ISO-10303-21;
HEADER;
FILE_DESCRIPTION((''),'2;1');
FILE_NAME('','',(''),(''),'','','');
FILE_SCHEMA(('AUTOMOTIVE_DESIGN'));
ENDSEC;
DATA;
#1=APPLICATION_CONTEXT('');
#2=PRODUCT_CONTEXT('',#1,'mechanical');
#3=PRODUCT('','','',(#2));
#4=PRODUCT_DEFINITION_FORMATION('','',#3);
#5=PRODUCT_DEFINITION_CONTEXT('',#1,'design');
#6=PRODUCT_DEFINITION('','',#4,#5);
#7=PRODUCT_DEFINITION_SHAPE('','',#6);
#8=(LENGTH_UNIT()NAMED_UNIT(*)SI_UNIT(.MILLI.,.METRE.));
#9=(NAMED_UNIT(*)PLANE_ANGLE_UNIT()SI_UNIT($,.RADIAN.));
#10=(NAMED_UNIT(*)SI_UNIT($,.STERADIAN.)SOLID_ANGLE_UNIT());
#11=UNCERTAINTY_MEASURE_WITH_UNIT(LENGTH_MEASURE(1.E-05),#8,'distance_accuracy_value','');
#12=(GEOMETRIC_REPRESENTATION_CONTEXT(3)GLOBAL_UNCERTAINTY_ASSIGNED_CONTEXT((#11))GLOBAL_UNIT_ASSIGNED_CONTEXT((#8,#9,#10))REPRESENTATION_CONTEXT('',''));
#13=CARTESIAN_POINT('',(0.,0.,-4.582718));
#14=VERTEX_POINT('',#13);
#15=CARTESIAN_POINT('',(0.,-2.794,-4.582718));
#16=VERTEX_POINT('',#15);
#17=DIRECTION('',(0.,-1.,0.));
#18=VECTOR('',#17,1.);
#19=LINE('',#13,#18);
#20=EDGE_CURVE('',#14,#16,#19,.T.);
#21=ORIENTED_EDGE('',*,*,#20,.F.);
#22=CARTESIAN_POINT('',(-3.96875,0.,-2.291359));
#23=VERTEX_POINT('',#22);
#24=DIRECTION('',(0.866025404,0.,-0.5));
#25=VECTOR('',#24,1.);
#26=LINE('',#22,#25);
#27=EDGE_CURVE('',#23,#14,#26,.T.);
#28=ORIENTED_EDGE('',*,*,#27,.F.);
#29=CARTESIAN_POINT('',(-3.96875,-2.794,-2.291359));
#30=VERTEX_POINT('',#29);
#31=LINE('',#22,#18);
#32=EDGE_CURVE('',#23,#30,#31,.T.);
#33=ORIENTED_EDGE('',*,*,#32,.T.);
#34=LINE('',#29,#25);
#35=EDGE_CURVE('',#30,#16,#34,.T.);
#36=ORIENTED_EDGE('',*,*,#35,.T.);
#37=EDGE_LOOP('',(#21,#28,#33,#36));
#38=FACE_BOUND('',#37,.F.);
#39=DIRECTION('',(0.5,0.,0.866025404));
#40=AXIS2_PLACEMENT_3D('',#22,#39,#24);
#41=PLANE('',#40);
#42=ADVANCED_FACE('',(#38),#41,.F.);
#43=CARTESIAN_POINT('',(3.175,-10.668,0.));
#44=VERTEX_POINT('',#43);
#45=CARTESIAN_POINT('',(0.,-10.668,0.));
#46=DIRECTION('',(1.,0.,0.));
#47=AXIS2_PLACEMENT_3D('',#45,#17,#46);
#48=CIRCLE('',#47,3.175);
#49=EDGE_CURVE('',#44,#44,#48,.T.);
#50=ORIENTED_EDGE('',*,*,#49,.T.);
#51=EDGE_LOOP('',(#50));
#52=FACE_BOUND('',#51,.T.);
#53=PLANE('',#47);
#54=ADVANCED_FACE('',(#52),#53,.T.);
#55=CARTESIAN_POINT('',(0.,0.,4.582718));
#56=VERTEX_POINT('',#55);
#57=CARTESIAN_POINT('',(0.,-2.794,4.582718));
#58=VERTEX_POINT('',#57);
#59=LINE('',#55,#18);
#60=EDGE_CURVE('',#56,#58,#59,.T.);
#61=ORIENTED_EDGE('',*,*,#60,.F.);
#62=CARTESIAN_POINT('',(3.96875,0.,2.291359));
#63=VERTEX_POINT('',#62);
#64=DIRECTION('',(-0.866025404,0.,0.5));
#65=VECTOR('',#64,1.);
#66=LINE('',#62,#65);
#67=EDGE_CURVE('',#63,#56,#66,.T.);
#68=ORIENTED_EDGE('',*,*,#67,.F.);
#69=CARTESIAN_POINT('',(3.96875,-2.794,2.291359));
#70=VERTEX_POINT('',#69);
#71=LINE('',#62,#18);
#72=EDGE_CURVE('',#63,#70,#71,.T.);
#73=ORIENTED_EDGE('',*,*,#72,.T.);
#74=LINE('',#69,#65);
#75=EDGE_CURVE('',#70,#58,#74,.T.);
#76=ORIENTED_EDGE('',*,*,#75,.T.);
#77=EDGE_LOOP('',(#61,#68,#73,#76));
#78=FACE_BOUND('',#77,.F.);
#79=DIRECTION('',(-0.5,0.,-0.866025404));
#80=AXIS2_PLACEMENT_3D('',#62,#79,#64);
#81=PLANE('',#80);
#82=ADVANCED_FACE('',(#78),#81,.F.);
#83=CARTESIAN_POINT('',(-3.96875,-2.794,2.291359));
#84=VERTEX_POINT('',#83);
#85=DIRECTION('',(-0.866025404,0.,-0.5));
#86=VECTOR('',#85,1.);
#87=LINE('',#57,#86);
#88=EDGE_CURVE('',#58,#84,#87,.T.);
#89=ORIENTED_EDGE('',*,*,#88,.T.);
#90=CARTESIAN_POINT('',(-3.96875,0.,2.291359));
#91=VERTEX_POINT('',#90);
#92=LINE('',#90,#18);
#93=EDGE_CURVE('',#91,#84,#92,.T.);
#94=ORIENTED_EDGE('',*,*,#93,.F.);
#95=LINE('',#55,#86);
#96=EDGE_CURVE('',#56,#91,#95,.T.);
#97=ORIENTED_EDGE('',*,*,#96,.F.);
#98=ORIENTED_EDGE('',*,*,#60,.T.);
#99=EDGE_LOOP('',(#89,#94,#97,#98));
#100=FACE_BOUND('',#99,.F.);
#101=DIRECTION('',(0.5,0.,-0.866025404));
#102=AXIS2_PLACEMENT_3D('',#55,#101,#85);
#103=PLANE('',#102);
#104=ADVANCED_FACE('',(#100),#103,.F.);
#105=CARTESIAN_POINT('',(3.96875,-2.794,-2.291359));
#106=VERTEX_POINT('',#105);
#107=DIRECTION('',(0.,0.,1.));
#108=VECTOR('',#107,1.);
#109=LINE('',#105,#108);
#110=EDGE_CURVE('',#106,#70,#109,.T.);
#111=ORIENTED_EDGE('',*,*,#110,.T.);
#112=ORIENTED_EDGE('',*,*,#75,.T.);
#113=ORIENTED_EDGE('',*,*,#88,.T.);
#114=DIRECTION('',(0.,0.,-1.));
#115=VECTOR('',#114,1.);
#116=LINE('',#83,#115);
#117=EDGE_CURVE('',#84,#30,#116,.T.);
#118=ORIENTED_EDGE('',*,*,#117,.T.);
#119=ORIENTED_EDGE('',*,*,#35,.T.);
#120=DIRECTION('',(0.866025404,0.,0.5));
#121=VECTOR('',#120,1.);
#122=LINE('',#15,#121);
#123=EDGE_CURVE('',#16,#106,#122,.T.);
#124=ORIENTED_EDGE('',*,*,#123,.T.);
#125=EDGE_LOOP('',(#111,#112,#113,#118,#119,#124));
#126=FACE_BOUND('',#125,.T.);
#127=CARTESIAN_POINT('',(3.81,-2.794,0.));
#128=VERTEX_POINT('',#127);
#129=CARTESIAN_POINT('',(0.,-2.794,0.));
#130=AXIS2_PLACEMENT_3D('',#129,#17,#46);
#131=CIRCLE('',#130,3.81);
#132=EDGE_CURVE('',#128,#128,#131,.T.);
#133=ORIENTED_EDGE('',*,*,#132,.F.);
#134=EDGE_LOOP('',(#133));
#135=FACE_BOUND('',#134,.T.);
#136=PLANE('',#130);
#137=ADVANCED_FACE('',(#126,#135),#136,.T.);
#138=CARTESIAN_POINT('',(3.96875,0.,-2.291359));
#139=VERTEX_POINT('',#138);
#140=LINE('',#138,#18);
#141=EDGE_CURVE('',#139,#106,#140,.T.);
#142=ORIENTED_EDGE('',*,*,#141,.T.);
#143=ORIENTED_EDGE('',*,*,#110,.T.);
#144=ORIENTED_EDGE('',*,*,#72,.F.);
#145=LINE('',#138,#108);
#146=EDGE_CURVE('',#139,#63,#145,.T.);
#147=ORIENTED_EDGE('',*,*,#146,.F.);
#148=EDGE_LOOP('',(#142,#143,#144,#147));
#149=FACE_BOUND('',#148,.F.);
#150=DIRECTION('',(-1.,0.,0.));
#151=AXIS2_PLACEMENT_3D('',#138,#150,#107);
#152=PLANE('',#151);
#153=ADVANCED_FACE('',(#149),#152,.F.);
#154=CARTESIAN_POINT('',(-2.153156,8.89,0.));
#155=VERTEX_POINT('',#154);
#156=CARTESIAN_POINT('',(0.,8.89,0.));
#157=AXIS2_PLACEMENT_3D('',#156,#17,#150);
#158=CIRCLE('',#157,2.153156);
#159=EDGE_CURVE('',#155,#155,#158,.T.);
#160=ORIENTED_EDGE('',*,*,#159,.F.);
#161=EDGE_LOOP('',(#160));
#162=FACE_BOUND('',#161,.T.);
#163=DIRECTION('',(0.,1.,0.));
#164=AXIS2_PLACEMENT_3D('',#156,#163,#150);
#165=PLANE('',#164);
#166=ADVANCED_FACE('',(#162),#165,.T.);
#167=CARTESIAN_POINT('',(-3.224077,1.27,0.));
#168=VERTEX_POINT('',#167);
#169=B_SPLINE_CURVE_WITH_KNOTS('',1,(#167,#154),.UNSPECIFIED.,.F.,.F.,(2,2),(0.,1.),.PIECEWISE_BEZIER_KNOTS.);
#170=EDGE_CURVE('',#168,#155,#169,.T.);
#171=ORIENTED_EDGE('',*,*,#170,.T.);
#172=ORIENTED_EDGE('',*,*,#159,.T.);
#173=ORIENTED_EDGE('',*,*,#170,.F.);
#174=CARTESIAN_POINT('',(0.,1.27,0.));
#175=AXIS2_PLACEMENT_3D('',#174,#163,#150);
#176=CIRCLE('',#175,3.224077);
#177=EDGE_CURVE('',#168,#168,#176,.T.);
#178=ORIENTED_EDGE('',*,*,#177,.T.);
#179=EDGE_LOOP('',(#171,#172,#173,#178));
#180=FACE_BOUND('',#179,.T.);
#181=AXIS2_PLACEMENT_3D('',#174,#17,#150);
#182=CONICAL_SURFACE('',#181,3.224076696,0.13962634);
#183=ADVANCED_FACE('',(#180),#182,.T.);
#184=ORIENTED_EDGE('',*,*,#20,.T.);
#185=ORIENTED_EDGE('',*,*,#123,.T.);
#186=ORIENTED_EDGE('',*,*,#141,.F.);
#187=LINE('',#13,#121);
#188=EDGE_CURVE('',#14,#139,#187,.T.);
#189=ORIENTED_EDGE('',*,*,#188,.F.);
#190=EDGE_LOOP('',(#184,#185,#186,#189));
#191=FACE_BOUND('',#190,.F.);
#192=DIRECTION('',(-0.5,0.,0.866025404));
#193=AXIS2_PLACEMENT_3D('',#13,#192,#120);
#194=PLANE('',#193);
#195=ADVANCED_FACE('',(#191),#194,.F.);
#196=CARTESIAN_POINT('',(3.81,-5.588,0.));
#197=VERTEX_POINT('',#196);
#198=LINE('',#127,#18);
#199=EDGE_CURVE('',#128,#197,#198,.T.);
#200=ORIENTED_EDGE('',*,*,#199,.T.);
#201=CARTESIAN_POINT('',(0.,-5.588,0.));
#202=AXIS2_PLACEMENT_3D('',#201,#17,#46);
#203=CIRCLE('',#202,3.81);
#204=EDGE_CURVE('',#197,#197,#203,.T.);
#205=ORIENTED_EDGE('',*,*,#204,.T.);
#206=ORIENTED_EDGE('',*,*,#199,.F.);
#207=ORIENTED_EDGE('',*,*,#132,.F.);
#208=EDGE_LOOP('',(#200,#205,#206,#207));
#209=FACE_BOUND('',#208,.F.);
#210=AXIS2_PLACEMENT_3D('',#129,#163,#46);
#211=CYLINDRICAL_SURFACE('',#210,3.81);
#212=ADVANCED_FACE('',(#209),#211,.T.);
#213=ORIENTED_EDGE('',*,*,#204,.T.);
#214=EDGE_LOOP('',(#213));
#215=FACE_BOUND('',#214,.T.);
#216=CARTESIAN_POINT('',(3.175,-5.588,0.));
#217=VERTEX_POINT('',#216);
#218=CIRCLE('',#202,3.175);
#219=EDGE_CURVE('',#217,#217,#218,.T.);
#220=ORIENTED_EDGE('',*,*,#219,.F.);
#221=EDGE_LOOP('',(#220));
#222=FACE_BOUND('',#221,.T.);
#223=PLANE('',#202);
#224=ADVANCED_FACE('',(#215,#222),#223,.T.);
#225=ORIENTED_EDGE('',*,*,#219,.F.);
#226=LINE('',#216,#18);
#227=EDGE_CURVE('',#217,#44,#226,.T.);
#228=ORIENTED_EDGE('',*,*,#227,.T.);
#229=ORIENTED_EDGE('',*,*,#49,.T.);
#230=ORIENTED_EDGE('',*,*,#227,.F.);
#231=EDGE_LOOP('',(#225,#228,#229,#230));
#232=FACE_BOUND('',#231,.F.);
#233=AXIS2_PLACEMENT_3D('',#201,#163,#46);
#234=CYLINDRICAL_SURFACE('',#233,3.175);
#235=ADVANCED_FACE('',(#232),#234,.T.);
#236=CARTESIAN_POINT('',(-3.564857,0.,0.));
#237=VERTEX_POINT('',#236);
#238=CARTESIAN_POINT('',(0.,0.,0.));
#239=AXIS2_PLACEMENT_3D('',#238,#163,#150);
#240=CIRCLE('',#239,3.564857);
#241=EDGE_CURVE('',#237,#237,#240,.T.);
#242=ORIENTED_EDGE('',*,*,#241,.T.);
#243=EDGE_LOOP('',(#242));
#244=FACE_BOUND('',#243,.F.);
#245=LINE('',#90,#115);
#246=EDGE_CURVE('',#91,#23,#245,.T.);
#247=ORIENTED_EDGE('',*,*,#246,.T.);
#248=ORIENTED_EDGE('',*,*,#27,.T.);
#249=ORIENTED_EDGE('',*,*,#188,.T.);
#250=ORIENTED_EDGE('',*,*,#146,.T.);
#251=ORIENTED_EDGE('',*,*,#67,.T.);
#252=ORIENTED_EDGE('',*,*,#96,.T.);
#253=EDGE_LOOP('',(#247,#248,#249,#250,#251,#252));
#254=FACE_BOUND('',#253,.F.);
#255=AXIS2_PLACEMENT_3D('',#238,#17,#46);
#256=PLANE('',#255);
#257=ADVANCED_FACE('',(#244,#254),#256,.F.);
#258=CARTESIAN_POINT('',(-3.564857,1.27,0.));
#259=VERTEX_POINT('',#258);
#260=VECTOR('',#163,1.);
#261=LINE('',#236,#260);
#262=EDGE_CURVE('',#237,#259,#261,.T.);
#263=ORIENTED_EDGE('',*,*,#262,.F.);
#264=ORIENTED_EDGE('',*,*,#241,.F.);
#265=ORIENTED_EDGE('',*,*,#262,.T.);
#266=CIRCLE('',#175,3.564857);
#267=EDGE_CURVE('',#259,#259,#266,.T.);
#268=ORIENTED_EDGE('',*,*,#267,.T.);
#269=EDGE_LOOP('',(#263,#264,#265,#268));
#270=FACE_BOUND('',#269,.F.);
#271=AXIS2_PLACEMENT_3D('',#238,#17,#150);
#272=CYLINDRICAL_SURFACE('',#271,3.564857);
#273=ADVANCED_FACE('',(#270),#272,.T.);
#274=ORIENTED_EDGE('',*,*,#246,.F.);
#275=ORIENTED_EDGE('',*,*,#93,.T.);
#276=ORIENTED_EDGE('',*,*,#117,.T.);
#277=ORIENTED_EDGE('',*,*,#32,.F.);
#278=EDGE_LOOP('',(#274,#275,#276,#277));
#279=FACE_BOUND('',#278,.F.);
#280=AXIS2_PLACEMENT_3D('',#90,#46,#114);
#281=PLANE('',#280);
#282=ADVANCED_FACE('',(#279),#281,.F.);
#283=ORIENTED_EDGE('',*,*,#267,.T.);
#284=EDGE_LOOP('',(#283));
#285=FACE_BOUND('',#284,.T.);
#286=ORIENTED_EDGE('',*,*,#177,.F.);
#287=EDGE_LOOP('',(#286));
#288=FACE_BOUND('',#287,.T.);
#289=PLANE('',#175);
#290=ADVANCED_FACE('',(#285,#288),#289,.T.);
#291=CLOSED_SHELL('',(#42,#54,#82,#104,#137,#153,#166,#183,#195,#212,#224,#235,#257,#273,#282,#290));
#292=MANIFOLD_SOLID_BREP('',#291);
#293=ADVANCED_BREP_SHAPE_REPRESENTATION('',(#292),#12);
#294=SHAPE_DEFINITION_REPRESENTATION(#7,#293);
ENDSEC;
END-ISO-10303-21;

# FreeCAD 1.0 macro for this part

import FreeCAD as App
import Part
import Sketcher
Q = App.Units.Quantity

doc = App.newDocument("Part")
body = doc.addObject("PartDesign::Body", "Body")

# Sketch on XZ plane
sketch1 = doc.addObject("Sketcher::SketchObject", "Sketch")
body.addObject(sketch1)
sketch1.AttachmentSupport = (doc.XZ_Plane, [""])
sketch1.MapMode = "FlatFace"
sketch1.addGeometry([
    Part.LineSegment(App.Vector(4, -2.3, 0), App.Vector(4, 2.3, 0)),  # 0
    Part.LineSegment(App.Vector(4, 2.3, 0), App.Vector(0, 4.6, 0)),  # 1
    Part.LineSegment(App.Vector(0, 4.6, 0), App.Vector(-4, 2.3, 0)),  # 2
    Part.LineSegment(App.Vector(-4, 2.3, 0), App.Vector(-4, -2.3, 0)),  # 3
    Part.LineSegment(App.Vector(-4, -2.3, 0), App.Vector(0, -4.6, 0)),  # 4
    Part.LineSegment(App.Vector(0, -4.6, 0), App.Vector(4, -2.3, 0)),  # 5
], False)
sketch1.addConstraint([
    Sketcher.Constraint("Coincident", 0, 2, 1, 1),
    Sketcher.Constraint("Coincident", 1, 2, 2, 1),
    Sketcher.Constraint("Coincident", 2, 2, 3, 1),
    Sketcher.Constraint("Coincident", 3, 2, 4, 1),
    Sketcher.Constraint("Coincident", 4, 2, 5, 1),
    Sketcher.Constraint("Coincident", 5, 2, 0, 1),
    Sketcher.Constraint("Vertical", 0),
    Sketcher.Constraint("Vertical", 3),
    Sketcher.Constraint("Symmetric", 0, 2, 3, 2, -1, 1),
    Sketcher.Constraint("Symmetric", 1, 2, 4, 2, -1, 1),
    Sketcher.Constraint("PointOnObject", 1, 2, -2),
    Sketcher.Constraint("Parallel", 2, 5),
    Sketcher.Constraint("Horizontal", 0, 2, 2, 2),
    Sketcher.Constraint("Angle", 1, Q("150 deg")),
    Sketcher.Constraint("DistanceX", -1, 1, 0, 2, Q("0.15625 in")),
    Sketcher.Constraint("DistanceY", 0, 1, 0, 2, Q("4.582718 mm")),
])
pad1 = doc.addObject("PartDesign::Pad", "Pad")
body.addObject(pad1)
pad1.Profile = sketch1
pad1.Length = Q("0.11 in")

# Sketch on XZ plane
sketch2 = doc.addObject("Sketcher::SketchObject", "Sketch001")
body.addObject(sketch2)
sketch2.AttachmentSupport = (doc.XZ_Plane, [""])
sketch2.MapMode = "FlatFace"
sketch2.AttachmentOffset = App.Placement(App.Vector(0, 0, 0.11 * 25.4), App.Rotation())
sketch2.addGeometry(Part.Circle(App.Vector(0, 0, 0), App.Vector(0, 0, 1), 3.8), False)
sketch2.addConstraint([
    Sketcher.Constraint("Coincident", 0, 3, -1, 1),
    Sketcher.Constraint("Diameter", 0, Q("0.3 in")),
])
pad2 = doc.addObject("PartDesign::Pad", "Pad001")
body.addObject(pad2)
pad2.Profile = sketch2
pad2.Length = Q("0.11 in")

# Sketch on XZ plane
sketch3 = doc.addObject("Sketcher::SketchObject", "Sketch002")
body.addObject(sketch3)
sketch3.AttachmentSupport = (doc.XZ_Plane, [""])
sketch3.MapMode = "FlatFace"
sketch3.AttachmentOffset = App.Placement(App.Vector(0, 0, 0.22 * 25.4), App.Rotation())
sketch3.addGeometry(Part.Circle(App.Vector(0, 0, 0), App.Vector(0, 0, 1), 3.2), False)
sketch3.addConstraint([
    Sketcher.Constraint("Coincident", 0, 3, -1, 1),
    Sketcher.Constraint("Diameter", 0, Q("0.25 in")),
])
pad3 = doc.addObject("PartDesign::Pad", "Pad002")
body.addObject(pad3)
pad3.Profile = sketch3
pad3.Length = Q("0.2 in")

# Sketch on XZ plane
sketch4 = doc.addObject("Sketcher::SketchObject", "Sketch003")
body.addObject(sketch4)
sketch4.AttachmentSupport = (doc.XZ_Plane, [""])
sketch4.MapMode = "FlatFace"
sketch4.addGeometry(Part.Circle(App.Vector(0, 0, 0), App.Vector(0, 0, 1), 3.6), False)
sketch4.addConstraint([
    Sketcher.Constraint("Coincident", 0, 3, -1, 1),
    Sketcher.Constraint("Diameter", 0, Q("7.129713 mm")),
])
pad4 = doc.addObject("PartDesign::Pad", "Pad003")
body.addObject(pad4)
pad4.Profile = sketch4
pad4.Length = Q("0.05 in")
pad4.Reversed = True

# Sketch on XZ plane
sketch5 = doc.addObject("Sketcher::SketchObject", "Sketch004")
body.addObject(sketch5)
sketch5.AttachmentSupport = (doc.XZ_Plane, [""])
sketch5.MapMode = "FlatFace"
sketch5.AttachmentOffset = App.Placement(App.Vector(0, 0, -0.05 * 25.4), App.Rotation())
sketch5.addGeometry(Part.Circle(App.Vector(0, 0, 0), App.Vector(0, 0, 1), 3.2), False)
sketch5.addConstraint([
    Sketcher.Constraint("Coincident", 0, 3, -1, 1),
    Sketcher.Constraint("Diameter", 0, Q("6.448153 mm")),
])
pad5 = doc.addObject("PartDesign::Pad", "Pad004")
body.addObject(pad5)
pad5.Profile = sketch5
pad5.Length = Q("0.3 in")
pad5.Reversed = True
pad5.TaperAngle = -8

doc.recompute()
